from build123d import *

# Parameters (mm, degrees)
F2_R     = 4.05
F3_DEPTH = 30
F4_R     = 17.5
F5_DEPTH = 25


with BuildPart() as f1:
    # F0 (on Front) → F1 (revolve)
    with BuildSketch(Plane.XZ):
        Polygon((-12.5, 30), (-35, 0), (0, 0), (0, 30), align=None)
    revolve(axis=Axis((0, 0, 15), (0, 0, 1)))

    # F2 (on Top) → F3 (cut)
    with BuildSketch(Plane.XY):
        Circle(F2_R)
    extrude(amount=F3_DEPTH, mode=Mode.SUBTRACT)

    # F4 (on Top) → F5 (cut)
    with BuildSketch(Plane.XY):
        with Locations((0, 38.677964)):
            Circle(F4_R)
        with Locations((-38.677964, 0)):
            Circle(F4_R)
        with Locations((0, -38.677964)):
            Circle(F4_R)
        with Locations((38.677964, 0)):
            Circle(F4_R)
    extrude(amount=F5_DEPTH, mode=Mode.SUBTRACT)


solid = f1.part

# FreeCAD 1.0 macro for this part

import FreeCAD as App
import Part
import Sketcher

V = App.Vector


def add_polygon(sketch, points):
    """Adds a closed chain of lines whose ends are joined by coincident constraints."""
    first, n = sketch.GeometryCount, len(points)
    for a, b in zip(points, points[1:] + points[:1]):
        sketch.addGeometry(Part.LineSegment(App.Vector(*a, 0), App.Vector(*b, 0)), False)
    for i in range(n):
        sketch.addConstraint(Sketcher.Constraint("Coincident", first + i, 2, first + (i + 1) % n, 1))

doc = App.newDocument("Part")
params = doc.addObject("Spreadsheet::Sheet", "Params")
for row, (alias, value) in enumerate([
    ("sketch1_width", "35 mm"),
    ("sketch1_height", "30 mm"),
    ("sketch1_width2", "12.5 mm"),
    ("revolution_angle", "360 deg"),
    ("sketch2_diameter", "8.1 mm"),
    ("pocket1_length", "30 mm"),
    ("sketch3_diameter", "35 mm"),
    ("pocket2_length", "25 mm"),
], start=1):
    params.set(f"A{row}", alias)
    params.set(f"B{row}", "=" + value)
    params.setAlias(f"B{row}", alias)

body = doc.addObject("PartDesign::Body", "Body")

# Sketch on XZ plane
sketch1 = doc.addObject("Sketcher::SketchObject", "Sketch")
body.addObject(sketch1)
sketch1.AttachmentSupport = (doc.XZ_Plane, [""])
sketch1.MapMode = "FlatFace"
add_polygon(sketch1, [(-12.5, 30), (-35, 0), (0, 0), (0, 30)])  # lines 0-3
sketch1.addConstraint(Sketcher.Constraint("Horizontal", 1))
sketch1.addConstraint(Sketcher.Constraint("Vertical", 2))
sketch1.addConstraint(Sketcher.Constraint("Horizontal", 3))
sketch1.addConstraint(Sketcher.Constraint("Coincident", 1, 2, -1, 1))
sketch1.addConstraint(Sketcher.Constraint("DistanceX", 1, 1, 1, 2, 35.0))
sketch1.addConstraint(Sketcher.Constraint("DistanceY", 2, 1, 2, 2, 30.0))
sketch1.addConstraint(Sketcher.Constraint("DistanceX", 3, 2, 3, 1, 12.5))
sketch1.setExpression("Constraints[8]", "Params.sketch1_width")
sketch1.setExpression("Constraints[9]", "Params.sketch1_height")
sketch1.setExpression("Constraints[10]", "Params.sketch1_width2")
revolution = doc.addObject("PartDesign::Revolution", "Revolution")
body.addObject(revolution)
revolution.Profile = sketch1
revolution.ReferenceAxis = (sketch1, ["V_Axis"])
revolution.setExpression("Angle", "Params.revolution_angle")

# Sketch on XY plane
sketch2 = doc.addObject("Sketcher::SketchObject", "Sketch001")
body.addObject(sketch2)
sketch2.AttachmentSupport = (doc.XY_Plane, [""])
sketch2.MapMode = "FlatFace"
sketch2.addGeometry(Part.Circle(V(0, 0, 0), V(0, 0, 1), 4.05), False)
sketch2.addConstraint(Sketcher.Constraint("Coincident", 0, 3, -1, 1))
sketch2.addConstraint(Sketcher.Constraint("Diameter", 0, 8.1))
sketch2.setExpression("Constraints[1]", "Params.sketch2_diameter")
pocket1 = doc.addObject("PartDesign::Pocket", "Pocket")
body.addObject(pocket1)
pocket1.Profile = sketch2
pocket1.setExpression("Length", "Params.pocket1_length")
pocket1.Reversed = True

# Sketch on XY plane
sketch3 = doc.addObject("Sketcher::SketchObject", "Sketch002")
body.addObject(sketch3)
sketch3.AttachmentSupport = (doc.XY_Plane, [""])
sketch3.MapMode = "FlatFace"
sketch3.addGeometry(Part.Circle(V(0, 38.677964, 0), V(0, 0, 1), 17.5), False)
sketch3.addGeometry(Part.Circle(V(-38.677964, 0, 0), V(0, 0, 1), 17.5), False)
sketch3.addGeometry(Part.Circle(V(0, -38.677964, 0), V(0, 0, 1), 17.5), False)
sketch3.addGeometry(Part.Circle(V(38.677964, 0, 0), V(0, 0, 1), 17.5), False)
sketch3.addConstraint(Sketcher.Constraint("Equal", 0, 1))
sketch3.addConstraint(Sketcher.Constraint("Equal", 1, 2))
sketch3.addConstraint(Sketcher.Constraint("Equal", 2, 3))
sketch3.addConstraint(Sketcher.Constraint("Symmetric", 0, 3, 2, 3, -1, 1))
sketch3.addConstraint(Sketcher.Constraint("Symmetric", 1, 3, 3, 3, -1, 1))
sketch3.addConstraint(Sketcher.Constraint("PointOnObject", 0, 3, -2))
sketch3.addConstraint(Sketcher.Constraint("PointOnObject", 1, 3, -1))
sketch3.addConstraint(Sketcher.Constraint("Diameter", 0, 35.0))
sketch3.addConstraint(Sketcher.Constraint("DistanceY", 2, 3, 0, 3, 77.355928))
sketch3.addConstraint(Sketcher.Constraint("DistanceX", 1, 3, 3, 3, 77.355928))
sketch3.setExpression("Constraints[7]", "Params.sketch3_diameter")
pocket2 = doc.addObject("PartDesign::Pocket", "Pocket001")
body.addObject(pocket2)
pocket2.Profile = sketch3
pocket2.setExpression("Length", "Params.pocket2_length")
pocket2.Reversed = True

doc.recompute()
